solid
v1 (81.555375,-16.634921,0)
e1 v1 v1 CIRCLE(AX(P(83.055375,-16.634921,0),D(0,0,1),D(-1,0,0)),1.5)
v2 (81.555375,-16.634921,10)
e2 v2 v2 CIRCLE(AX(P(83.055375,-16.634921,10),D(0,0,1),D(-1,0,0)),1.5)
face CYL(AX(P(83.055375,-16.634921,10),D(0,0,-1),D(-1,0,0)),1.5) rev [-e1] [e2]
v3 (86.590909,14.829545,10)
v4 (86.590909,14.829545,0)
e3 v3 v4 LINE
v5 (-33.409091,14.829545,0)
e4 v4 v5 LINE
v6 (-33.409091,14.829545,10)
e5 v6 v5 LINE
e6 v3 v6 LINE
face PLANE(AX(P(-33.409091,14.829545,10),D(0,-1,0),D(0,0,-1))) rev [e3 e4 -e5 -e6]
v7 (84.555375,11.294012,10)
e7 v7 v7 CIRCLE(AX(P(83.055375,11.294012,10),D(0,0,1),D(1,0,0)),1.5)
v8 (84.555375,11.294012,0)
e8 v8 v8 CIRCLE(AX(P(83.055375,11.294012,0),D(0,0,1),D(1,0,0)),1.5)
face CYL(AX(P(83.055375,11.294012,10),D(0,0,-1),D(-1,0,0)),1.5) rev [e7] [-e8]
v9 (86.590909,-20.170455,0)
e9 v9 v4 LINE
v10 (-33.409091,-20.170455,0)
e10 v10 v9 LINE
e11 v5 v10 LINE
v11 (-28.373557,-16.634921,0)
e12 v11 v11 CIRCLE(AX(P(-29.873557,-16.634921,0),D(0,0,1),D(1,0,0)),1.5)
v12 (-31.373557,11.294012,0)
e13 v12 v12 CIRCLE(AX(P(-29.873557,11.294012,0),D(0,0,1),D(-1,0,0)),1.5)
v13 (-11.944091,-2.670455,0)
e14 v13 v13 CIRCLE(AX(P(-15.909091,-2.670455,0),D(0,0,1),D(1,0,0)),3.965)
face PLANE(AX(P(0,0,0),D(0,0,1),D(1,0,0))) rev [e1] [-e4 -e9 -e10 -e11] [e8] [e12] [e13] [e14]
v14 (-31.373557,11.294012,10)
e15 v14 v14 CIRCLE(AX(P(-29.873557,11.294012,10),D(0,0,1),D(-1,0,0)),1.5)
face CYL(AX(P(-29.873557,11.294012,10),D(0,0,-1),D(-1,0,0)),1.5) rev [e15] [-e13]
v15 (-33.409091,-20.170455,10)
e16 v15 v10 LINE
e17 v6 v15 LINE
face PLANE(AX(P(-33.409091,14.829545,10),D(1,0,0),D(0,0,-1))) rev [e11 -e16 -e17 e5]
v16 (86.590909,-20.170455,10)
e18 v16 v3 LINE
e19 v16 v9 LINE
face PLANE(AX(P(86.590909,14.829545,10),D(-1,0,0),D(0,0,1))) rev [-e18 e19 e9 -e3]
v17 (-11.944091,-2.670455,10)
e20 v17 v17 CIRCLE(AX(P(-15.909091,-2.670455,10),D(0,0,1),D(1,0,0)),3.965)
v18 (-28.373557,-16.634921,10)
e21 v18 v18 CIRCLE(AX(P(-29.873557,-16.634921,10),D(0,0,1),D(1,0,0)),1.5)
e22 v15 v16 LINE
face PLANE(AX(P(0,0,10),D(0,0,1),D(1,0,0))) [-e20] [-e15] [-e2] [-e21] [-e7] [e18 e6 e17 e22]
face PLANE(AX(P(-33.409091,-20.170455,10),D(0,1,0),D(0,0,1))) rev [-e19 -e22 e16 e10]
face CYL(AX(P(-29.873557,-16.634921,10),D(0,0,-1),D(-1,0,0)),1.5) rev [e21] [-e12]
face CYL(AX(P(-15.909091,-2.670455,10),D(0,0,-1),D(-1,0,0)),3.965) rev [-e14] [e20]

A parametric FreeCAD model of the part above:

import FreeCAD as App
import Part
import Sketcher

V = App.Vector


def add_polygon(sketch, points):
    """Adds a closed chain of lines whose ends are joined by coincident constraints."""
    first, n = sketch.GeometryCount, len(points)
    for a, b in zip(points, points[1:] + points[:1]):
        sketch.addGeometry(Part.LineSegment(App.Vector(*a, 0), App.Vector(*b, 0)), False)
    for i in range(n):
        sketch.addConstraint(Sketcher.Constraint("Coincident", first + i, 2, first + (i + 1) % n, 1))

doc = App.newDocument("Part")
body = doc.addObject("PartDesign::Body", "Body")

# Sketch on XY plane
sketch1 = body.newObject("Sketcher::SketchObject", "Sketch")
sketch1.AttachmentSupport = (doc.getObject("XY_Plane"), [""])
sketch1.MapMode = "FlatFace"
add_polygon(sketch1, [(-33.4, 14.8), (-33.4, -20.2), (86.6, -20.2), (86.6, 14.8)])  # lines 0-3
sketch1.addGeometry(Part.Circle(V(-29.9, -16.6, 0), V(0, 0, 1), 1.5), False)  # 4
sketch1.addGeometry(Part.Circle(V(83.1, -16.6, 0), V(0, 0, 1), 1.5), False)  # 5
sketch1.addGeometry(Part.Circle(V(-15.9, -2.7, 0), V(0, 0, 1), 4), False)  # 6
sketch1.addGeometry(Part.Circle(V(-29.9, 11.3, 0), V(0, 0, 1), 1.5), False)  # 7
sketch1.addGeometry(Part.Circle(V(83.1, 11.3, 0), V(0, 0, 1), 1.5), False)  # 8
sketch1.addConstraint([
    Sketcher.Constraint("Vertical", 0),
    Sketcher.Constraint("Horizontal", 1),
    Sketcher.Constraint("Vertical", 2),
    Sketcher.Constraint("Horizontal", 3),
    Sketcher.Constraint("Equal", 4, 5),
    Sketcher.Constraint("Equal", 5, 7),
    Sketcher.Constraint("Equal", 7, 8),
    Sketcher.Constraint("Horizontal", 4, 3, 5, 3),
    Sketcher.Constraint("Horizontal", 7, 3, 8, 3),
    Sketcher.Constraint("Vertical", 4, 3, 7, 3),
    Sketcher.Constraint("Vertical", 5, 3, 8, 3),
    Sketcher.Constraint("Diameter", 4, 3.0),
    Sketcher.Constraint("Diameter", 6, 7.93),
    Sketcher.Constraint("DistanceX", 1, 1, 1, 2, 120.0),
    Sketcher.Constraint("DistanceY", 0, 2, 0, 1, 35.0),
    Sketcher.Constraint("DistanceX", 0, 2, 6, 3, 17.5),
    Sketcher.Constraint("DistanceY", 0, 2, 6, 3, 17.5),
    Sketcher.Constraint("DistanceY", 4, 3, -1, 1, 16.634921),
    Sketcher.Constraint("DistanceX", 6, 3, -1, 1, 15.909091),
    Sketcher.Constraint("DistanceY", -1, 1, 7, 3, 11.294012),
    Sketcher.Constraint("DistanceX", 4, 3, -1, 1, 29.873557),
    Sketcher.Constraint("DistanceX", -1, 1, 5, 3, 83.055375),
    Sketcher.Constraint("DistanceY", 6, 3, -1, 1, 2.670455),
])
pad1 = body.newObject("PartDesign::Pad", "Pad")
pad1.Profile = sketch1
pad1.Length = 10

doc.recompute()
